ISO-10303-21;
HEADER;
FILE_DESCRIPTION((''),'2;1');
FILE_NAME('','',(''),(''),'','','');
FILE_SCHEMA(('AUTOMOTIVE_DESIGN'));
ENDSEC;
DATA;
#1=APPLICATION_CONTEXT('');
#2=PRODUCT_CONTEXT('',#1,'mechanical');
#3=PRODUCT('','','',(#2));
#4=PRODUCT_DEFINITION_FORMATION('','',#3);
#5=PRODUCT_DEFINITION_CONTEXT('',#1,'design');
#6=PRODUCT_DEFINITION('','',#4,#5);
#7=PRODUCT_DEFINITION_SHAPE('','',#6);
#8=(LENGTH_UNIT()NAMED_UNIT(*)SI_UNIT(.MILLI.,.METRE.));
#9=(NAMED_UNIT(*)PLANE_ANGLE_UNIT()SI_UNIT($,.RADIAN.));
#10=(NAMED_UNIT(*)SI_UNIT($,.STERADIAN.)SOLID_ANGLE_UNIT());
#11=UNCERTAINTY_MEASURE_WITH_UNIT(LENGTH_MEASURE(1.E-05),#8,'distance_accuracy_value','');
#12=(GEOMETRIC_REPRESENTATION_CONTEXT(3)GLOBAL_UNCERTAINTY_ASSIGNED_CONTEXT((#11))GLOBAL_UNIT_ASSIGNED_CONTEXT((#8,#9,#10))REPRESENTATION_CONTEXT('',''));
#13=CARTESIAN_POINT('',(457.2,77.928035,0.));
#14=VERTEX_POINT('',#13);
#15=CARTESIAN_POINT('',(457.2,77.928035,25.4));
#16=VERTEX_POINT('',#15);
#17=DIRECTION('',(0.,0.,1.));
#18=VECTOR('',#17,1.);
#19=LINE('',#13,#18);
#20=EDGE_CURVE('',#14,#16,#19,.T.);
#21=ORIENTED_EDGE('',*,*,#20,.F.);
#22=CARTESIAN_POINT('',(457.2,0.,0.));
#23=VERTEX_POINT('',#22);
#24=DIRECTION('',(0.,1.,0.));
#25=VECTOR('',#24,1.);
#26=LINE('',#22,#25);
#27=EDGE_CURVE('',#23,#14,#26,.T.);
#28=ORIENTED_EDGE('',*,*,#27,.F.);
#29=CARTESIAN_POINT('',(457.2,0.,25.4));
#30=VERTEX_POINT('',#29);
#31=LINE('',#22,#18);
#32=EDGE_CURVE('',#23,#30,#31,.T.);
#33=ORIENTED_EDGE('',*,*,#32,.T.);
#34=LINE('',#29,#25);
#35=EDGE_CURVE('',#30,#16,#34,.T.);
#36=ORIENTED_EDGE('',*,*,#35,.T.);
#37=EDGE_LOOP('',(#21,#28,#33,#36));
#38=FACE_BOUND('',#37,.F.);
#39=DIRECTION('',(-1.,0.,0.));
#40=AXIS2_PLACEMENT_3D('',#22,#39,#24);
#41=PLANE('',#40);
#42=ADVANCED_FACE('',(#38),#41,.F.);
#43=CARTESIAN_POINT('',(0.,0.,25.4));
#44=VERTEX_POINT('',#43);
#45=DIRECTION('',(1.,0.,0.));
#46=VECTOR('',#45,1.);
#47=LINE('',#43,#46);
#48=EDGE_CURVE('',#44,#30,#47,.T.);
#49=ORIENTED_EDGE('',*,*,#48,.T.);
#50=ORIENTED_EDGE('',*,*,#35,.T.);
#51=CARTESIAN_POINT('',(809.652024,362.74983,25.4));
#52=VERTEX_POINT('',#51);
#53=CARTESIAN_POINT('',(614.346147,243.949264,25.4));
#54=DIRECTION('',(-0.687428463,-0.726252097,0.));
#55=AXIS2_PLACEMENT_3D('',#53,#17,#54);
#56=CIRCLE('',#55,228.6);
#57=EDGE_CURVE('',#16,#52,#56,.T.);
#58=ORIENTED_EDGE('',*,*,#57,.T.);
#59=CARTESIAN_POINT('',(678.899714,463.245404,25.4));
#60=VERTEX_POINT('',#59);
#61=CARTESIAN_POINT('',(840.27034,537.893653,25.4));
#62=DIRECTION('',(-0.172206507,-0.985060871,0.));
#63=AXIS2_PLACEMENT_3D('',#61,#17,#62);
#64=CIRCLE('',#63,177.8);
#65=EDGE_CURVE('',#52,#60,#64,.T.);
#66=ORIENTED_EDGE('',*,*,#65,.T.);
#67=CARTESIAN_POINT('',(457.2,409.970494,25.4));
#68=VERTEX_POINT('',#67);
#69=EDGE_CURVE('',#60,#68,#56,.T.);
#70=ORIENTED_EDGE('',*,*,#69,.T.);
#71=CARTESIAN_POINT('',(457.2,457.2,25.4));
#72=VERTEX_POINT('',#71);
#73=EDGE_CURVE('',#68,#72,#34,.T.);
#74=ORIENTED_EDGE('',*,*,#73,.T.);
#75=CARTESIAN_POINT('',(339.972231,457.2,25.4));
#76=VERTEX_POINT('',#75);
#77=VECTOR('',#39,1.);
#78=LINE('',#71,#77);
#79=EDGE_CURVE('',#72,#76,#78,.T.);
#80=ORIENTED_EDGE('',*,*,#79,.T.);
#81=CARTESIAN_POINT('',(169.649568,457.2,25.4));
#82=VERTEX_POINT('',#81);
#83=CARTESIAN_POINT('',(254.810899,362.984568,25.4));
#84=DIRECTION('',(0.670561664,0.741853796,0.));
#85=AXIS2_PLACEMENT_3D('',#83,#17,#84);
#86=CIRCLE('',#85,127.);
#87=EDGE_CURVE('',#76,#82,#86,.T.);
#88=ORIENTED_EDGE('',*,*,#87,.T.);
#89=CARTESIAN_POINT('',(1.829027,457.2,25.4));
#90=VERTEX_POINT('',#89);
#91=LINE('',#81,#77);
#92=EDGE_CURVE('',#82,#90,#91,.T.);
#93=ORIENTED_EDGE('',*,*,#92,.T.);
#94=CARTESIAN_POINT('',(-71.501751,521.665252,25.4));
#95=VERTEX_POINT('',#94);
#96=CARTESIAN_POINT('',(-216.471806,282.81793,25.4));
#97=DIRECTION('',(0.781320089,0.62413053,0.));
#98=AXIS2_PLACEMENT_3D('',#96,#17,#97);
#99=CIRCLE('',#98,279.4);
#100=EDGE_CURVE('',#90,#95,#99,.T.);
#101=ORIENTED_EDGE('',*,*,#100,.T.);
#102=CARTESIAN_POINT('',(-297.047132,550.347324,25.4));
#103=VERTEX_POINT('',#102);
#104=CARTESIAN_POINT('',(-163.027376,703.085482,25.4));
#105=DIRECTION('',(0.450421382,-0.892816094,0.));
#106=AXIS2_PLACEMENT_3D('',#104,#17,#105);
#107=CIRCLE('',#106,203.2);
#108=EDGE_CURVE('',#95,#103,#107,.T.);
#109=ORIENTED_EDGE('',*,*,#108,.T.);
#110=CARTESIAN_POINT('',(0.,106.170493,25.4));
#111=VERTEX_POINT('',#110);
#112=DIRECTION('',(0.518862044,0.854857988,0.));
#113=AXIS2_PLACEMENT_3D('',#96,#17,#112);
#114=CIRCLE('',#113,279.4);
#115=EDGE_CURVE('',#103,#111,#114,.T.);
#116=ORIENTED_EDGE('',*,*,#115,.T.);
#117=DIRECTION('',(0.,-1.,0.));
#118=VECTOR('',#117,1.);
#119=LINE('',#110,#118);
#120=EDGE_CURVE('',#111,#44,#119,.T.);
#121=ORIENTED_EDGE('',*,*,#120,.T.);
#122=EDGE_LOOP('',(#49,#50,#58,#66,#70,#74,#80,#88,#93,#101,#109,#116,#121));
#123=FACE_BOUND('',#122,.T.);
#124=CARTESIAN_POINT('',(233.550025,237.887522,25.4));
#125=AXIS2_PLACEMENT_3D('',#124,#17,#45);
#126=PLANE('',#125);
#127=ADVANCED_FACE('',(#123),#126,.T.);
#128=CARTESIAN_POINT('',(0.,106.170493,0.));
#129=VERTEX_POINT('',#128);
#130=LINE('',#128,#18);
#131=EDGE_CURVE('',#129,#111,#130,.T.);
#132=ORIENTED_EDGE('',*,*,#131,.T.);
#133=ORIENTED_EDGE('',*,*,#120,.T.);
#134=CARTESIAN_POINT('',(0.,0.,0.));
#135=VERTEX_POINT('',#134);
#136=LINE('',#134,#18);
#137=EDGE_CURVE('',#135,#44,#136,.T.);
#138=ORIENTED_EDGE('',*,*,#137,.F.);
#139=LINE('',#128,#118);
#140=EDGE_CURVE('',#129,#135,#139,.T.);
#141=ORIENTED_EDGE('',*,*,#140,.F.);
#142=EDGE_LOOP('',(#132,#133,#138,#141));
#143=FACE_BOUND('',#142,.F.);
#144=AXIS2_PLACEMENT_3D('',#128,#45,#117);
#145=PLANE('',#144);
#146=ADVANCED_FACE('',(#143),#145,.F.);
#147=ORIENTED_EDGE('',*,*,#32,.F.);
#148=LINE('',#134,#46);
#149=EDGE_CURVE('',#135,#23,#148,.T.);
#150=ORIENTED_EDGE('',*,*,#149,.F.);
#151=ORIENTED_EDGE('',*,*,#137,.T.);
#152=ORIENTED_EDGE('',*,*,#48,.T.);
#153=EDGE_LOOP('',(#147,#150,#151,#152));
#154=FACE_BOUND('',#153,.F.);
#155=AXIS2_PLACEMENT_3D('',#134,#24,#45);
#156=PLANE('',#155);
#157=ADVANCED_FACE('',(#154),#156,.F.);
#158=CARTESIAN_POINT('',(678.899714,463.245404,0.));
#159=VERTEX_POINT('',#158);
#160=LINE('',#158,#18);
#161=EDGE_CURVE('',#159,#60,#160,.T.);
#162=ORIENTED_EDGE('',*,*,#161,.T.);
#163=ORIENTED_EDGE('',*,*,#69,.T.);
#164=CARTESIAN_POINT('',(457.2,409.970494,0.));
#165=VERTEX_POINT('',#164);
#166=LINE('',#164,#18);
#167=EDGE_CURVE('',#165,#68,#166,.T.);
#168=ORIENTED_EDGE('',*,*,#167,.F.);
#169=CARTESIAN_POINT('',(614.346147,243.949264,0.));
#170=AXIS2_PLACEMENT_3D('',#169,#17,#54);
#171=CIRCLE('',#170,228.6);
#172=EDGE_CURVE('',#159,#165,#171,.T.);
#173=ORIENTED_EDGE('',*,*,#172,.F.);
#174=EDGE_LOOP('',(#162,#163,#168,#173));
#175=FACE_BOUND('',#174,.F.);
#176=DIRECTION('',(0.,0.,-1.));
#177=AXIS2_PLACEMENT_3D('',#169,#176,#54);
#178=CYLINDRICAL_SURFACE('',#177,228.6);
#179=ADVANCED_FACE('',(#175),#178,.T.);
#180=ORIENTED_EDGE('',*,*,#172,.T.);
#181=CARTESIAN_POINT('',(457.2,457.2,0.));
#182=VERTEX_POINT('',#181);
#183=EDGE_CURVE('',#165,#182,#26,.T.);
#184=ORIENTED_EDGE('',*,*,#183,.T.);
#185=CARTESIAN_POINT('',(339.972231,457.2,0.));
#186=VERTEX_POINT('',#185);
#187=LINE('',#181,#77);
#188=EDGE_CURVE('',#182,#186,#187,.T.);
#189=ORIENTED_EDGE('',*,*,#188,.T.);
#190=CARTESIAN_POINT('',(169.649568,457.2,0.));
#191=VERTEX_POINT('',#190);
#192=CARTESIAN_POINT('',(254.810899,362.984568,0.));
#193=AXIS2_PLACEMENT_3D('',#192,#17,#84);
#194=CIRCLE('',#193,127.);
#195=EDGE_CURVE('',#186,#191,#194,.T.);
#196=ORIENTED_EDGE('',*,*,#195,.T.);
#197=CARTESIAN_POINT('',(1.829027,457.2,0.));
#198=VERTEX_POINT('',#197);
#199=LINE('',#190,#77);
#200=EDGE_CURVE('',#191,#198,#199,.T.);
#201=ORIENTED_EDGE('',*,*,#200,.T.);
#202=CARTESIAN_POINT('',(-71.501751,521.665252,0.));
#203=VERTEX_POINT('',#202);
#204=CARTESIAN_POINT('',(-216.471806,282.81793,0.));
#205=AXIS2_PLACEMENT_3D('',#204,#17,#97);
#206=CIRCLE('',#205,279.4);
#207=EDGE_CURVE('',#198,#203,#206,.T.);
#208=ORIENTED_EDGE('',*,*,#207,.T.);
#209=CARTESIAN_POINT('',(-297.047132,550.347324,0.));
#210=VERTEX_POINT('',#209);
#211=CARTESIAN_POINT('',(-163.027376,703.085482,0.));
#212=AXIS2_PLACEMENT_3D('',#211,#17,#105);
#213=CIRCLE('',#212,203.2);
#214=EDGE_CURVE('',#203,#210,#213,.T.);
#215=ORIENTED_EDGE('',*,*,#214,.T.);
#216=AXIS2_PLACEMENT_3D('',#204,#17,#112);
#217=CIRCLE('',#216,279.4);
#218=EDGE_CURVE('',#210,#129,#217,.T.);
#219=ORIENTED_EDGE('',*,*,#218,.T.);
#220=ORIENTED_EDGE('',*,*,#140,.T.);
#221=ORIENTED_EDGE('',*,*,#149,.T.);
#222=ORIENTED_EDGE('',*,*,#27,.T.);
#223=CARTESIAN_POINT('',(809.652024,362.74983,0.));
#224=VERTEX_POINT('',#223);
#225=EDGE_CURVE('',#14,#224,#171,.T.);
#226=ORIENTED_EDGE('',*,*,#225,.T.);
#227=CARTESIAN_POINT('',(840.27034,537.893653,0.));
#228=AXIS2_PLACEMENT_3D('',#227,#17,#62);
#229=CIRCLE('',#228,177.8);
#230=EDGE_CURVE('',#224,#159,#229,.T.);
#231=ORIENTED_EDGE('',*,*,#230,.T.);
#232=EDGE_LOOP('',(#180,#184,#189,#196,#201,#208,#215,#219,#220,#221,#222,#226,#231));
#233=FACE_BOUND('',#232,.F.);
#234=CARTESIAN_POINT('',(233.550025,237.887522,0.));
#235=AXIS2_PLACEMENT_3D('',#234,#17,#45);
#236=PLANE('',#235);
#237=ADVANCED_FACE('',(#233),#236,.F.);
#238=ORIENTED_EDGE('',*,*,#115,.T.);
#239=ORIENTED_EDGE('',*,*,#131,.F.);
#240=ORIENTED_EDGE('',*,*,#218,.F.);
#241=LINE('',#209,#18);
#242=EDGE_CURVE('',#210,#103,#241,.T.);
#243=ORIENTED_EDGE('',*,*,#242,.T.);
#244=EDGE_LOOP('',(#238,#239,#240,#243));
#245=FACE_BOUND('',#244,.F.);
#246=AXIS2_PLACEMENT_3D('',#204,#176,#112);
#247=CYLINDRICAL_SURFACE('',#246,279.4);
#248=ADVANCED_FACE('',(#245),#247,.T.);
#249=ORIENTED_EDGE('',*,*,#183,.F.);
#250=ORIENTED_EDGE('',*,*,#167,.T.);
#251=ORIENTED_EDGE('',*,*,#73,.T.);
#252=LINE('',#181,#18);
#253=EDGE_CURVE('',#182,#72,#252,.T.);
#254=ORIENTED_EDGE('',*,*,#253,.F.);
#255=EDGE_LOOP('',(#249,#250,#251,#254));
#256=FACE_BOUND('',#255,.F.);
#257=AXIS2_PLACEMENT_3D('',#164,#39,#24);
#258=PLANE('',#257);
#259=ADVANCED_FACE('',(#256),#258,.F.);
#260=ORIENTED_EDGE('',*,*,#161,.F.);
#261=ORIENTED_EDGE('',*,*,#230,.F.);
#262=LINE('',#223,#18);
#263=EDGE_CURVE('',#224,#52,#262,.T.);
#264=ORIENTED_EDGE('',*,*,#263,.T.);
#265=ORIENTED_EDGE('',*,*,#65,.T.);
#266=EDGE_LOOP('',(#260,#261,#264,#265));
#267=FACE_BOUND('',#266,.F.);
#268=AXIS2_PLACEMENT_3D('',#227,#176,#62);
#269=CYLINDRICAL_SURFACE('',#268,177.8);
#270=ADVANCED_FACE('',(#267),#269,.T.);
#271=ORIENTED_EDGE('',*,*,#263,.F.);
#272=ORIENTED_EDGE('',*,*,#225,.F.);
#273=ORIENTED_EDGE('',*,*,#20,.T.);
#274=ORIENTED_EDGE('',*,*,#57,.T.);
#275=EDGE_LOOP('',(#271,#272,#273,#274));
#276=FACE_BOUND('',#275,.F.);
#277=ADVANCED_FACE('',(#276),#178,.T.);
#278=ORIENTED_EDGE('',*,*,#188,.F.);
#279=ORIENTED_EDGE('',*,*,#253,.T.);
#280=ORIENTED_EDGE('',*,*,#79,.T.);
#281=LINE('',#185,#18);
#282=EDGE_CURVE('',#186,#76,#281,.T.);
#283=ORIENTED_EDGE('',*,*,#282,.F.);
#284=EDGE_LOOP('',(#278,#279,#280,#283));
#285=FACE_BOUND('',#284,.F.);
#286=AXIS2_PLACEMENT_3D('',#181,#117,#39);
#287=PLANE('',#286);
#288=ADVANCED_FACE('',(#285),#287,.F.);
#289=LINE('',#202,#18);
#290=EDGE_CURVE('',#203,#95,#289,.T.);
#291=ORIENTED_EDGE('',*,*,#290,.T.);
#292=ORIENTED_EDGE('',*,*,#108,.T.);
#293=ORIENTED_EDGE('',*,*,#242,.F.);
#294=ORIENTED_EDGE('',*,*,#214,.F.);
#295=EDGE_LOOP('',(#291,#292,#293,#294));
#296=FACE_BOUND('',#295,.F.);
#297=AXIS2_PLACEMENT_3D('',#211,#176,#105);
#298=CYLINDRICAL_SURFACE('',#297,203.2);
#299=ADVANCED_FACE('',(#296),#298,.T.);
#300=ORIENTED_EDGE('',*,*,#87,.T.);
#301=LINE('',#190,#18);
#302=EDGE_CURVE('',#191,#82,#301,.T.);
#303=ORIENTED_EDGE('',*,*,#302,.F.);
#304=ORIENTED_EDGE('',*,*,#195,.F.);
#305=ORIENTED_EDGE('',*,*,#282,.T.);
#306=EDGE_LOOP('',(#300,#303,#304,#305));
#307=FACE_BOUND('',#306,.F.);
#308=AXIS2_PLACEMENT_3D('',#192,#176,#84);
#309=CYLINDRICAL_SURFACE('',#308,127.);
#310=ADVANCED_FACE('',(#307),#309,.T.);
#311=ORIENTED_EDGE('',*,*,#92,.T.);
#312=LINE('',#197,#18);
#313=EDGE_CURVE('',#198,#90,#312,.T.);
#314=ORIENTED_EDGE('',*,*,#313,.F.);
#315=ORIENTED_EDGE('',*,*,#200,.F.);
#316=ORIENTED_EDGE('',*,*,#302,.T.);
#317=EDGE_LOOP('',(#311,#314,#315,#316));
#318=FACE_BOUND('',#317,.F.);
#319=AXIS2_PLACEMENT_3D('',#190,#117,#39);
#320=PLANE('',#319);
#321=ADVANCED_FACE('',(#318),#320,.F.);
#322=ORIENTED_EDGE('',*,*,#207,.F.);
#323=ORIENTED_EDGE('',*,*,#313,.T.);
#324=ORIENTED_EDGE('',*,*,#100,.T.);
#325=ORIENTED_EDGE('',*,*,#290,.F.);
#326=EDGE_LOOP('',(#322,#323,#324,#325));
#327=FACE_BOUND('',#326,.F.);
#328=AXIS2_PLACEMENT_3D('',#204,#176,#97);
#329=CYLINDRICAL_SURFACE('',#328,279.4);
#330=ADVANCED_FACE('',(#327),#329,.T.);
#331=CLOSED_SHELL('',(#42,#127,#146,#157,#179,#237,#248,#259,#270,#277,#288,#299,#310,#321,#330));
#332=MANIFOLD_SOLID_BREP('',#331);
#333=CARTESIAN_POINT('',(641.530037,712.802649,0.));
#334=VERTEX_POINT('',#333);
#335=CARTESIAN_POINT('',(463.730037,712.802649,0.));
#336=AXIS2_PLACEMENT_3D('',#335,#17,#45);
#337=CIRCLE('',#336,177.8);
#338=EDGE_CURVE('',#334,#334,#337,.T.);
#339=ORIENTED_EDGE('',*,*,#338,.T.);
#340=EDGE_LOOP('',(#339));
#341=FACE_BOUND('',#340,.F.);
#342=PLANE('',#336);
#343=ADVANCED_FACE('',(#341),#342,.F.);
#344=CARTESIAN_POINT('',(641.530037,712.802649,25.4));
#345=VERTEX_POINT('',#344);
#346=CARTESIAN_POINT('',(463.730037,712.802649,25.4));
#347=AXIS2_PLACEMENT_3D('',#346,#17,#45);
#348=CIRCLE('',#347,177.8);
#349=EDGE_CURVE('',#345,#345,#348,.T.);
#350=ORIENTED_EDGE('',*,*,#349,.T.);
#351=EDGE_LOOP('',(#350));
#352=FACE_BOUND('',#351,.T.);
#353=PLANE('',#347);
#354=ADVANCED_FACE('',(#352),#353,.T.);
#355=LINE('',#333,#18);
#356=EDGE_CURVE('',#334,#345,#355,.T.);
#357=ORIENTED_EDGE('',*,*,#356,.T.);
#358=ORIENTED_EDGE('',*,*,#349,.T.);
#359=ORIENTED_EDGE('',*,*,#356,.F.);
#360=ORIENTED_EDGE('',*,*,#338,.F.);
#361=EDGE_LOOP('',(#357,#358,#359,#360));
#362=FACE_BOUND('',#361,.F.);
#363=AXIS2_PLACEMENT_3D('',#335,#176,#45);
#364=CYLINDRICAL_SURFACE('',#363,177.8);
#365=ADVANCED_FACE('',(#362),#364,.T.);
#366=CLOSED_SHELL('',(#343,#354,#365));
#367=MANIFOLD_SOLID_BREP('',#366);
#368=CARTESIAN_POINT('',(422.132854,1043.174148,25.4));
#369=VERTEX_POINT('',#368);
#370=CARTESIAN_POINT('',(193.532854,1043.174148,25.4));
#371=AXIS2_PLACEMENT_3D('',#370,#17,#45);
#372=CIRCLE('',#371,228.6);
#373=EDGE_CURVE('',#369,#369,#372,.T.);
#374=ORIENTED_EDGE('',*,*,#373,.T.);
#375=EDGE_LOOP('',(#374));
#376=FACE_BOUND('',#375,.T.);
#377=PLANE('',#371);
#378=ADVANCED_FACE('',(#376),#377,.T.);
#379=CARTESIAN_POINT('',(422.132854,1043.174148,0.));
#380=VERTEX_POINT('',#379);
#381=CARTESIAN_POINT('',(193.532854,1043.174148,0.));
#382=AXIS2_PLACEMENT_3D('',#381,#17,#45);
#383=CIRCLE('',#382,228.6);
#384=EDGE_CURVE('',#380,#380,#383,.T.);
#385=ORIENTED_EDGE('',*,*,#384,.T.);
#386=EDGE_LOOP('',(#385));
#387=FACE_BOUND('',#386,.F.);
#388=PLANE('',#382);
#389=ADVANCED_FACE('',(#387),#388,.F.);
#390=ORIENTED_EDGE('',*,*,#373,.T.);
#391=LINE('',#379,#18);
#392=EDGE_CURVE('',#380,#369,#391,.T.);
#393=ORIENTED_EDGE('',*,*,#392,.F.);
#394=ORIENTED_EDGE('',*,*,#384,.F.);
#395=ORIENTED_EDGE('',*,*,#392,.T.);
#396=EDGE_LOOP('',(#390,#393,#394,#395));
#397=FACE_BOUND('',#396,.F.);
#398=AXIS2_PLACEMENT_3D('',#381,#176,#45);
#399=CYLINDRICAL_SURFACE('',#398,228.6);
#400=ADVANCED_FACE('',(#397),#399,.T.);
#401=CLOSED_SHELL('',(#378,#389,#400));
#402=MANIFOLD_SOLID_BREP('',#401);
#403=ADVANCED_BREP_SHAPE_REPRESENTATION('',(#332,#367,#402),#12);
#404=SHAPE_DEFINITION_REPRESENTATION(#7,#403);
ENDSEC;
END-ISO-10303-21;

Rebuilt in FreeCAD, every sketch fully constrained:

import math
import FreeCAD as App
import Part
import Sketcher

V = App.Vector
Q = App.Units.Quantity

doc = App.newDocument("Part")
body = doc.addObject("PartDesign::Body", "Body")

# Sketch on XY plane
sketch1 = body.newObject("Sketcher::SketchObject", "Sketch")
sketch1.AttachmentSupport = (doc.getObject("XY_Plane"), [""])
sketch1.MapMode = "FlatFace"
sketch1.addGeometry([
    Part.LineSegment(V(0, 106, 0), V(0, 0, 0)),  # 0
    Part.LineSegment(V(0, 0, 0), V(457, 0, 0)),  # 1
    Part.LineSegment(V(457, 0, 0), V(457, 78, 0)),  # 2
    Part.ArcOfCircle(Part.Circle(V(614, 244, 0), V(0, 0, 1), 229), math.radians(-133), math.radians(31)),  # 3
    Part.ArcOfCircle(Part.Circle(V(840, 538, 0), V(0, 0, 1), 178), math.radians(-100), math.radians(205)),  # 4
    Part.ArcOfCircle(Part.Circle(V(614, 244, 0), V(0, 0, 1), 229), math.radians(74), math.radians(133)),  # 5
    Part.LineSegment(V(457, 410, 0), V(457, 457, 0)),  # 6
    Part.LineSegment(V(457, 457, 0), V(340, 457, 0)),  # 7
    Part.ArcOfCircle(Part.Circle(V(255, 363, 0), V(0, 0, 1), 127), math.radians(48), math.radians(132)),  # 8
    Part.LineSegment(V(170, 457, 0), V(2, 457, 0)),  # 9
    Part.ArcOfCircle(Part.Circle(V(-216, 283, 0), V(0, 0, 1), 279), math.radians(39), math.radians(59)),  # 10
    Part.ArcOfCircle(Part.Circle(V(-163, 703, 0), V(0, 0, 1), 203), math.radians(-63), math.radians(229)),  # 11
    Part.ArcOfCircle(Part.Circle(V(-216, 283, 0), V(0, 0, 1), 279), math.radians(107), math.radians(321)),  # 12
], False)
sketch1.addConstraint([
    Sketcher.Constraint("Coincident", 0, 2, 1, 1),
    Sketcher.Constraint("Coincident", 1, 2, 2, 1),
    Sketcher.Constraint("Coincident", 2, 2, 3, 1),
    Sketcher.Constraint("Coincident", 3, 2, 4, 1),
    Sketcher.Constraint("Coincident", 4, 2, 5, 1),
    Sketcher.Constraint("Coincident", 5, 2, 6, 1),
    Sketcher.Constraint("Coincident", 6, 2, 7, 1),
    Sketcher.Constraint("Coincident", 7, 2, 8, 1),
    Sketcher.Constraint("Coincident", 8, 2, 9, 1),
    Sketcher.Constraint("Coincident", 9, 2, 10, 1),
    Sketcher.Constraint("Coincident", 10, 2, 11, 1),
    Sketcher.Constraint("Coincident", 11, 2, 12, 1),
    Sketcher.Constraint("Coincident", 12, 2, 0, 1),
    Sketcher.Constraint("Vertical", 0),
    Sketcher.Constraint("Horizontal", 1),
    Sketcher.Constraint("Vertical", 2),
    Sketcher.Constraint("Vertical", 6),
    Sketcher.Constraint("Horizontal", 7),
    Sketcher.Constraint("Horizontal", 9),
    Sketcher.Constraint("Coincident", 0, 2, -1, 1),
    Sketcher.Constraint("Coincident", 5, 3, 3, 3),
    Sketcher.Constraint("Coincident", 12, 3, 10, 3),
    Sketcher.Constraint("Equal", 3, 5),
    Sketcher.Constraint("Equal", 10, 12),
    Sketcher.Constraint("Horizontal", 7, 2, 8, 2),
    Sketcher.Constraint("Vertical", 2, 2, 5, 2),
    Sketcher.Constraint("Radius", 3, Q("9 in")),
    Sketcher.Constraint("Radius", 4, Q("7 in")),
    Sketcher.Constraint("Radius", 8, Q("5 in")),
    Sketcher.Constraint("Radius", 10, Q("11 in")),
    Sketcher.Constraint("Radius", 11, Q("8 in")),
    Sketcher.Constraint("DistanceX", 1, 1, 1, 2, Q("18 in")),
    Sketcher.Constraint("DistanceY", -1, 1, 6, 2, Q("18 in")),
    Sketcher.Constraint("DistanceX", 7, 2, 7, 1, Q("117.227769 mm")),
    Sketcher.Constraint("DistanceX", 9, 2, 9, 1, Q("167.820541 mm")),
    Sketcher.Constraint("DistanceX", -1, 1, 8, 3, Q("254.810899 mm")),
    Sketcher.Constraint("DistanceY", 0, 2, 0, 1, Q("106.170493 mm")),
    Sketcher.Constraint("DistanceY", 2, 1, 2, 2, Q("77.928035 mm")),
    Sketcher.Constraint("DistanceY", 6, 1, 6, 2, Q("47.229506 mm")),
    Sketcher.Constraint("DistanceX", -1, 1, 4, 3, Q("840.27034 mm")),
    Sketcher.Constraint("DistanceY", -1, 1, 3, 2, Q("362.74983 mm")),
    Sketcher.Constraint("DistanceX", 10, 2, -1, 1, Q("71.501751 mm")),
    Sketcher.Constraint("DistanceX", 10, 3, 11, 3, Q("53.44443 mm")),
])
pad1 = body.newObject("PartDesign::Pad", "Pad")
pad1.Profile = sketch1
pad1.Length = Q("1 in")
body2 = doc.addObject("PartDesign::Body", "Body001")

# Sketch on XY plane
sketch2 = body2.newObject("Sketcher::SketchObject", "Sketch001")
sketch2.AttachmentSupport = (doc.getObject("XY_Plane001"), [""])
sketch2.MapMode = "FlatFace"
sketch2.addGeometry(Part.Circle(V(464, 713, 0), V(0, 0, 1), 178), False)
sketch2.addConstraint([
    Sketcher.Constraint("Diameter", 0, Q("14 in")),
    Sketcher.Constraint("DistanceY", -1, 1, 0, 3, Q("712.802649 mm")),
    Sketcher.Constraint("DistanceX", -1, 1, 0, 3, Q("463.730037 mm")),
])
pad2 = body2.newObject("PartDesign::Pad", "Pad001")
pad2.Profile = sketch2
pad2.Length = Q("1 in")
body3 = doc.addObject("PartDesign::Body", "Body002")

# Sketch on XY plane
sketch3 = body3.newObject("Sketcher::SketchObject", "Sketch002")
sketch3.AttachmentSupport = (doc.getObject("XY_Plane002"), [""])
sketch3.MapMode = "FlatFace"
sketch3.addGeometry(Part.Circle(V(194, 1043, 0), V(0, 0, 1), 229), False)
sketch3.addConstraint([
    Sketcher.Constraint("Diameter", 0, Q("18 in")),
    Sketcher.Constraint("DistanceX", -1, 1, 0, 3, Q("193.532854 mm")),
    Sketcher.Constraint("DistanceY", -1, 1, 0, 3, Q("1043.174148 mm")),
])
pad3 = body3.newObject("PartDesign::Pad", "Pad002")
pad3.Profile = sketch3
pad3.Length = Q("1 in")

doc.recompute()
